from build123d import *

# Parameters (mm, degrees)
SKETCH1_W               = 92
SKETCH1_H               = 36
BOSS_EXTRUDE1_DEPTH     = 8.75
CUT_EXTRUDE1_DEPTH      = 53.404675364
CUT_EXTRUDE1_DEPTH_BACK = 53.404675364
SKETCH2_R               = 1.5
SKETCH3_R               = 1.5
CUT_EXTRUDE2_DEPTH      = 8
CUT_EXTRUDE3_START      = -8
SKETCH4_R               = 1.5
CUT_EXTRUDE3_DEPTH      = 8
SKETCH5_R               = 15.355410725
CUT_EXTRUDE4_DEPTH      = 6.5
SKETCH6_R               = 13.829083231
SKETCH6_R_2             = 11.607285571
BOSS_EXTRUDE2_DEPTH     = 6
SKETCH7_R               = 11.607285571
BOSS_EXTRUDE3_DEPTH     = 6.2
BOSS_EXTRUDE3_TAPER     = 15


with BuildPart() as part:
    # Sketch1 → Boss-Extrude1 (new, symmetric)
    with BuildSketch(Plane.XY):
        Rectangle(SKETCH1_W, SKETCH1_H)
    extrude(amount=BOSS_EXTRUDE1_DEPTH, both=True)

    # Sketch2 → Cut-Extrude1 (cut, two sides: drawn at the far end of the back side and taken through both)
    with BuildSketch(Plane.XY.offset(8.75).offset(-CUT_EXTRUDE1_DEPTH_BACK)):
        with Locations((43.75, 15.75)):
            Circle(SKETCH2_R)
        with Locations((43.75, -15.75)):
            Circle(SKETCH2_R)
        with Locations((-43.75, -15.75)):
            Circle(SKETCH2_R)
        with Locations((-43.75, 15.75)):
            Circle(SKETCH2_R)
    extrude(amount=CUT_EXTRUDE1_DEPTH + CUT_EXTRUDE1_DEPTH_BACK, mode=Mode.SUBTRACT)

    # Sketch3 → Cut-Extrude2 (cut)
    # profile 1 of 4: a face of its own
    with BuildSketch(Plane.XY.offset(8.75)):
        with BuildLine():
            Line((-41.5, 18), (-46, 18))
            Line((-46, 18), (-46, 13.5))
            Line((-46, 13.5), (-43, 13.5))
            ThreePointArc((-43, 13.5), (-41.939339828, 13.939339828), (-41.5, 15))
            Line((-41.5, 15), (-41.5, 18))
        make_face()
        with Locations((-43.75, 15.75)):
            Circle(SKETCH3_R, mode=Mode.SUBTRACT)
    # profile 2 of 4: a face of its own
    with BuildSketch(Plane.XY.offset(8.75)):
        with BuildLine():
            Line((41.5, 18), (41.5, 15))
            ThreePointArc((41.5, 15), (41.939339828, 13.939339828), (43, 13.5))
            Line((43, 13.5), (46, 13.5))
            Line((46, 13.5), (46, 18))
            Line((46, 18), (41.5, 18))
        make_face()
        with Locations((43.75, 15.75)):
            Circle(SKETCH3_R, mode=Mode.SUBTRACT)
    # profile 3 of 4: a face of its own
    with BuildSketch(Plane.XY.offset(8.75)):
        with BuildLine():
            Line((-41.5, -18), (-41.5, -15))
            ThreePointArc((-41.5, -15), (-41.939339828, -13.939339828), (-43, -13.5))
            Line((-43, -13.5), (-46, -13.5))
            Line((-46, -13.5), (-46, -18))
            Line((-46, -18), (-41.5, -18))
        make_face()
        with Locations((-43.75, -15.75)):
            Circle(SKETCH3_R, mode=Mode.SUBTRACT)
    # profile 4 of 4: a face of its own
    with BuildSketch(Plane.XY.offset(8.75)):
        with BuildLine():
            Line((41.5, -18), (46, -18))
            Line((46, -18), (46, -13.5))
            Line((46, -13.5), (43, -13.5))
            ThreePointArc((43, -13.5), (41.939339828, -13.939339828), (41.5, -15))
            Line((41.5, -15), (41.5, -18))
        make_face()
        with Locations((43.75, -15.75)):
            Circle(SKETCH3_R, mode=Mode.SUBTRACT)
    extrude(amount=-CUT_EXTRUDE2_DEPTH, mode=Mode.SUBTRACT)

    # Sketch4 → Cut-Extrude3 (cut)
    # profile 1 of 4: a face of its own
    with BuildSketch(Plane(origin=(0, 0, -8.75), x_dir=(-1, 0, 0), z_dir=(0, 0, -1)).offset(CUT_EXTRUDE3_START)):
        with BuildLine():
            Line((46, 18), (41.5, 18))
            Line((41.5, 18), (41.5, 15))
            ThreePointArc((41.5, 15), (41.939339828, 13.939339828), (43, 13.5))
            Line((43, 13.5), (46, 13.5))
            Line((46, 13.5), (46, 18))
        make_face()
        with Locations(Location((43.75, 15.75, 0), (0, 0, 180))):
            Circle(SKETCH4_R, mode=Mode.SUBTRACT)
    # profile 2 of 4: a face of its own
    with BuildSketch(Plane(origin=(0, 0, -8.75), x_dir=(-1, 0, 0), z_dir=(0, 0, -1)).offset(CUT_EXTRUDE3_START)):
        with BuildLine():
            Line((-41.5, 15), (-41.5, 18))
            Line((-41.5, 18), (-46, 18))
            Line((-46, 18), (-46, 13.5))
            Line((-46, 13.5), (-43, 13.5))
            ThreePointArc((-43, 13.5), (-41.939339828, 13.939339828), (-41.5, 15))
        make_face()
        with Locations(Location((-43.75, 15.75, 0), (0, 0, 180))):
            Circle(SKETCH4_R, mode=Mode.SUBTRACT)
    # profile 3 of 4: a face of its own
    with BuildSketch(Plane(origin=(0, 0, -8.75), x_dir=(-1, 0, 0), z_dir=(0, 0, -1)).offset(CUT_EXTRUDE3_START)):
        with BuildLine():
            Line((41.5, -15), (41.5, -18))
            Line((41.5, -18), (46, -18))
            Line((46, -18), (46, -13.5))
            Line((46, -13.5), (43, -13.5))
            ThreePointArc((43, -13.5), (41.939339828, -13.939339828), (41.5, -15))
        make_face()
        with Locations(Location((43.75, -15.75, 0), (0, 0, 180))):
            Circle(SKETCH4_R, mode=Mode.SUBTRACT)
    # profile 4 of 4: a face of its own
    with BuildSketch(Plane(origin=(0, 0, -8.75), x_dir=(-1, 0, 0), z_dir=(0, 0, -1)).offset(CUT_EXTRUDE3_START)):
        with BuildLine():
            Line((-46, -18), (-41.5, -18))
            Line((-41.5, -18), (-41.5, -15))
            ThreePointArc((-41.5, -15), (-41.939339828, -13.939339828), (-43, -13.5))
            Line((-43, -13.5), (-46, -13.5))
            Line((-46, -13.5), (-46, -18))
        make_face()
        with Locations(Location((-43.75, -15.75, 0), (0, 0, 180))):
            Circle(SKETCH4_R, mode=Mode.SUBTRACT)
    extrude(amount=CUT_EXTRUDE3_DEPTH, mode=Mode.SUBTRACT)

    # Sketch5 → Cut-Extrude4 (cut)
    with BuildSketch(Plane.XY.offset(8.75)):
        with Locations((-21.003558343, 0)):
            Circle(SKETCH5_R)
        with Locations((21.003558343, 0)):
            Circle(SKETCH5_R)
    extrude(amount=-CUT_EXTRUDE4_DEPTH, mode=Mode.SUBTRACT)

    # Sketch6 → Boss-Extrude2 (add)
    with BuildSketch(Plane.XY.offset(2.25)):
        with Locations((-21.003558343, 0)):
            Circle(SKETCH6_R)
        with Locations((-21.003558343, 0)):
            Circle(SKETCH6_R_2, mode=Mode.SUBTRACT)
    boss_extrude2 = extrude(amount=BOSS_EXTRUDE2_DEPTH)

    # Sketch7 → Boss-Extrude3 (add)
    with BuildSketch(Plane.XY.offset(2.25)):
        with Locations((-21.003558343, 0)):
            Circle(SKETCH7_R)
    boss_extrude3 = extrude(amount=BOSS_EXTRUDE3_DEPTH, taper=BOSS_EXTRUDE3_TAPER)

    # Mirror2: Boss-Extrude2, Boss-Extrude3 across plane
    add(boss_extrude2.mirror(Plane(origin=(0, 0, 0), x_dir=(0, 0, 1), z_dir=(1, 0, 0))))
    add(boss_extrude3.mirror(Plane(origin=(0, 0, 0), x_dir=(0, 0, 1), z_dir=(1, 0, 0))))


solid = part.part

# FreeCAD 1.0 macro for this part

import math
import FreeCAD as App
import Part
import Sketcher

V = App.Vector
Q = App.Units.Quantity

doc = App.newDocument("Part")
body = doc.addObject("PartDesign::Body", "Body")

# Sketch on XY plane
sketch1 = body.newObject("Sketcher::SketchObject", "Sketch")
sketch1.AttachmentSupport = (doc.getObject("XY_Plane"), [""])
sketch1.MapMode = "FlatFace"
sketch1.addGeometry([
    Part.LineSegment(V(-46, 18, 0), V(-46, -18, 0)),
    Part.LineSegment(V(-46, -18, 0), V(46, -18, 0)),
    Part.LineSegment(V(46, -18, 0), V(46, 18, 0)),
    Part.LineSegment(V(46, 18, 0), V(-46, 18, 0)),
], False)
sketch1.addConstraint([
    Sketcher.Constraint("Coincident", 0, 2, 1, 1),
    Sketcher.Constraint("Coincident", 1, 2, 2, 1),
    Sketcher.Constraint("Coincident", 2, 2, 3, 1),
    Sketcher.Constraint("Coincident", 3, 2, 0, 1),
    Sketcher.Constraint("Vertical", 0),
    Sketcher.Constraint("Horizontal", 1),
    Sketcher.Constraint("Vertical", 2),
    Sketcher.Constraint("Horizontal", 3),
    Sketcher.Constraint("Symmetric", 0, 2, 2, 2, -1, 1),
    Sketcher.Constraint("DistanceX", 1, 1, 1, 2, Q("92 mm")),
    Sketcher.Constraint("DistanceY", 0, 2, 0, 1, Q("36 mm")),
])
pad1 = body.newObject("PartDesign::Pad", "Pad")
pad1.Profile = sketch1
pad1.Length = 17.5
pad1.Midplane = True

# Sketch on XY plane
sketch2 = body.newObject("Sketcher::SketchObject", "Sketch001")
sketch2.AttachmentSupport = (doc.getObject("XY_Plane"), [""])
sketch2.MapMode = "FlatFace"
sketch2.AttachmentOffset = App.Placement(V(0, 0, 8.75), App.Rotation())
sketch2.addGeometry([
    Part.Circle(V(43.8, 15.8, 0), V(0, 0, 1), 1.5),
    Part.Circle(V(43.8, -15.8, 0), V(0, 0, 1), 1.5),
    Part.Circle(V(-43.8, -15.8, 0), V(0, 0, 1), 1.5),
    Part.Circle(V(-43.8, 15.8, 0), V(0, 0, 1), 1.5),
], False)
sketch2.addConstraint([
    Sketcher.Constraint("Equal", 0, 1),
    Sketcher.Constraint("Equal", 1, 2),
    Sketcher.Constraint("Equal", 2, 3),
    Sketcher.Constraint("Symmetric", 0, 3, 2, 3, -1, 1),
    Sketcher.Constraint("Symmetric", 1, 3, 3, 3, -1, 1),
    Sketcher.Constraint("Symmetric", 1, 3, 2, 3, -2),
    Sketcher.Constraint("Diameter", 0, Q("3 mm")),
    Sketcher.Constraint("DistanceY", 1, 3, 0, 3, Q("31.5 mm")),
    Sketcher.Constraint("DistanceX", 2, 3, 1, 3, Q("87.5 mm")),
])
pocket1 = body.newObject("PartDesign::Pocket", "Pocket")
pocket1.Profile = sketch2
pocket1.Type = "ThroughAll"
pocket1.Midplane = True

# Sketch on XY plane
sketch3 = body.newObject("Sketcher::SketchObject", "Sketch002")
sketch3.AttachmentSupport = (doc.getObject("XY_Plane"), [""])
sketch3.MapMode = "FlatFace"
sketch3.AttachmentOffset = App.Placement(V(0, 0, 8.75), App.Rotation())
sketch3.addGeometry([
    Part.LineSegment(V(-41.5, 18, 0), V(-46, 18, 0)),  # 0
    Part.LineSegment(V(-46, 18, 0), V(-46, 13.5, 0)),  # 1
    Part.LineSegment(V(-46, 13.5, 0), V(-43, 13.5, 0)),  # 2
    Part.ArcOfCircle(Part.Circle(V(-43, 15, 0), V(0, 0, 1), 1.5), math.radians(-90), math.radians(0)),  # 3
    Part.LineSegment(V(-41.5, 15, 0), V(-41.5, 18, 0)),  # 4
    Part.Circle(V(-43.8, 15.8, 0), V(0, 0, 1), 1.5),  # 5
    Part.LineSegment(V(41.5, 18, 0), V(41.5, 15, 0)),  # 6
    Part.ArcOfCircle(Part.Circle(V(43, 15, 0), V(0, 0, 1), 1.5), math.radians(180), math.radians(270)),  # 7
    Part.LineSegment(V(43, 13.5, 0), V(46, 13.5, 0)),  # 8
    Part.LineSegment(V(46, 13.5, 0), V(46, 18, 0)),  # 9
    Part.LineSegment(V(46, 18, 0), V(41.5, 18, 0)),  # 10
    Part.Circle(V(43.8, 15.8, 0), V(0, 0, 1), 1.5),  # 11
    Part.LineSegment(V(-41.5, -18, 0), V(-41.5, -15, 0)),  # 12
    Part.ArcOfCircle(Part.Circle(V(-43, -15, 0), V(0, 0, 1), 1.5), math.radians(0), math.radians(90)),  # 13
    Part.LineSegment(V(-43, -13.5, 0), V(-46, -13.5, 0)),  # 14
    Part.LineSegment(V(-46, -13.5, 0), V(-46, -18, 0)),  # 15
    Part.LineSegment(V(-46, -18, 0), V(-41.5, -18, 0)),  # 16
    Part.Circle(V(-43.8, -15.8, 0), V(0, 0, 1), 1.5),  # 17
    Part.LineSegment(V(41.5, -18, 0), V(46, -18, 0)),  # 18
    Part.LineSegment(V(46, -18, 0), V(46, -13.5, 0)),  # 19
    Part.LineSegment(V(46, -13.5, 0), V(43, -13.5, 0)),  # 20
    Part.ArcOfCircle(Part.Circle(V(43, -15, 0), V(0, 0, 1), 1.5), math.radians(90), math.radians(180)),  # 21
    Part.LineSegment(V(41.5, -15, 0), V(41.5, -18, 0)),  # 22
    Part.Circle(V(43.8, -15.8, 0), V(0, 0, 1), 1.5),  # 23
], False)
sketch3.addConstraint([
    Sketcher.Constraint("Coincident", 0, 2, 1, 1),
    Sketcher.Constraint("Coincident", 1, 2, 2, 1),
    Sketcher.Constraint("Tangent", 2, 2, 3, 1),
    Sketcher.Constraint("Tangent", 3, 2, 4, 1),
    Sketcher.Constraint("Coincident", 4, 2, 0, 1),
    Sketcher.Constraint("Tangent", 6, 2, 7, 1),
    Sketcher.Constraint("Tangent", 7, 2, 8, 1),
    Sketcher.Constraint("Coincident", 8, 2, 9, 1),
    Sketcher.Constraint("Coincident", 9, 2, 10, 1),
    Sketcher.Constraint("Coincident", 10, 2, 6, 1),
    Sketcher.Constraint("Tangent", 12, 2, 13, 1),
    Sketcher.Constraint("Tangent", 13, 2, 14, 1),
    Sketcher.Constraint("Coincident", 14, 2, 15, 1),
    Sketcher.Constraint("Coincident", 15, 2, 16, 1),
    Sketcher.Constraint("Coincident", 16, 2, 12, 1),
    Sketcher.Constraint("Coincident", 18, 2, 19, 1),
    Sketcher.Constraint("Coincident", 19, 2, 20, 1),
    Sketcher.Constraint("Tangent", 20, 2, 21, 1),
    Sketcher.Constraint("Tangent", 21, 2, 22, 1),
    Sketcher.Constraint("Coincident", 22, 2, 18, 1),
    Sketcher.Constraint("Horizontal", 0),
    Sketcher.Constraint("Vertical", 1),
    Sketcher.Constraint("Horizontal", 2),
    Sketcher.Constraint("Vertical", 4),
    Sketcher.Constraint("Vertical", 6),
    Sketcher.Constraint("Horizontal", 8),
    Sketcher.Constraint("Vertical", 9),
    Sketcher.Constraint("Horizontal", 10),
    Sketcher.Constraint("Vertical", 12),
    Sketcher.Constraint("Horizontal", 14),
    Sketcher.Constraint("Vertical", 15),
    Sketcher.Constraint("Horizontal", 16),
    Sketcher.Constraint("Horizontal", 18),
    Sketcher.Constraint("Vertical", 19),
    Sketcher.Constraint("Horizontal", 20),
    Sketcher.Constraint("Vertical", 22),
    Sketcher.Constraint("Equal", 3, 5),
    Sketcher.Constraint("Equal", 5, 7),
    Sketcher.Constraint("Equal", 7, 11),
    Sketcher.Constraint("Equal", 11, 13),
    Sketcher.Constraint("Equal", 13, 17),
    Sketcher.Constraint("Equal", 17, 21),
    Sketcher.Constraint("Equal", 21, 23),
    Sketcher.Constraint("Symmetric", 7, 3, 13, 3, -1, 1),
    Sketcher.Constraint("Symmetric", 11, 3, 17, 3, -1, 1),
    Sketcher.Constraint("Symmetric", 3, 3, 21, 3, -1, 1),
    Sketcher.Constraint("Symmetric", 5, 3, 23, 3, -1, 1),
    Sketcher.Constraint("Symmetric", 9, 2, 15, 2, -1, 1),
    Sketcher.Constraint("Symmetric", 0, 2, 18, 2, -1, 1),
    Sketcher.Constraint("Symmetric", 3, 3, 7, 3, -2),
    Sketcher.Constraint("Symmetric", 5, 3, 11, 3, -2),
    Sketcher.Constraint("Symmetric", 0, 2, 9, 2, -2),
    Sketcher.Constraint("Equal", 18, 1),
    Sketcher.Constraint("Diameter", 5, Q("3 mm")),
    Sketcher.Constraint("DistanceX", 2, 1, 2, 2, Q("3 mm")),
    Sketcher.Constraint("DistanceX", 3, 3, -1, 1, Q("43 mm")),
    Sketcher.Constraint("DistanceY", -1, 1, 3, 3, Q("15 mm")),
    Sketcher.Constraint("DistanceX", 5, 3, 11, 3, Q("87.5 mm")),
    Sketcher.Constraint("DistanceY", 17, 3, 5, 3, Q("31.5 mm")),
])
pocket2 = body.newObject("PartDesign::Pocket", "Pocket001")
pocket2.Profile = sketch3
pocket2.Length = 8

# Sketch on XY plane
sketch4 = body.newObject("Sketcher::SketchObject", "Sketch003")
sketch4.AttachmentSupport = (doc.getObject("XY_Plane"), [""])
sketch4.MapMode = "FlatFace"
sketch4.AttachmentOffset = App.Placement(V(0, 0, -0.75), App.Rotation())
sketch4.addGeometry([
    Part.LineSegment(V(-46, 18, 0), V(-41.5, 18, 0)),  # 0
    Part.LineSegment(V(-41.5, 18, 0), V(-41.5, 15, 0)),  # 1
    Part.ArcOfCircle(Part.Circle(V(-43, 15, 0), V(0, 0, 1), 1.5), math.radians(-90), math.radians(0)),  # 2
    Part.LineSegment(V(-43, 13.5, 0), V(-46, 13.5, 0)),  # 3
    Part.LineSegment(V(-46, 13.5, 0), V(-46, 18, 0)),  # 4
    Part.Circle(V(-43.8, 15.8, 0), V(0, 0, 1), 1.5),  # 5
    Part.LineSegment(V(41.5, 15, 0), V(41.5, 18, 0)),  # 6
    Part.LineSegment(V(41.5, 18, 0), V(46, 18, 0)),  # 7
    Part.LineSegment(V(46, 18, 0), V(46, 13.5, 0)),  # 8
    Part.LineSegment(V(46, 13.5, 0), V(43, 13.5, 0)),  # 9
    Part.ArcOfCircle(Part.Circle(V(43, 15, 0), V(0, 0, 1), 1.5), math.radians(180), math.radians(270)),  # 10
    Part.Circle(V(43.8, 15.8, 0), V(0, 0, 1), 1.5),  # 11
    Part.LineSegment(V(-41.5, -15, 0), V(-41.5, -18, 0)),  # 12
    Part.LineSegment(V(-41.5, -18, 0), V(-46, -18, 0)),  # 13
    Part.LineSegment(V(-46, -18, 0), V(-46, -13.5, 0)),  # 14
    Part.LineSegment(V(-46, -13.5, 0), V(-43, -13.5, 0)),  # 15
    Part.ArcOfCircle(Part.Circle(V(-43, -15, 0), V(0, 0, 1), 1.5), math.radians(0), math.radians(90)),  # 16
    Part.Circle(V(-43.8, -15.8, 0), V(0, 0, 1), 1.5),  # 17
    Part.LineSegment(V(46, -18, 0), V(41.5, -18, 0)),  # 18
    Part.LineSegment(V(41.5, -18, 0), V(41.5, -15, 0)),  # 19
    Part.ArcOfCircle(Part.Circle(V(43, -15, 0), V(0, 0, 1), 1.5), math.radians(90), math.radians(180)),  # 20
    Part.LineSegment(V(43, -13.5, 0), V(46, -13.5, 0)),  # 21
    Part.LineSegment(V(46, -13.5, 0), V(46, -18, 0)),  # 22
    Part.Circle(V(43.8, -15.8, 0), V(0, 0, 1), 1.5),  # 23
], False)
sketch4.addConstraint([
    Sketcher.Constraint("Coincident", 0, 2, 1, 1),
    Sketcher.Constraint("Tangent", 1, 2, 2, 2),
    Sketcher.Constraint("Tangent", 2, 1, 3, 1),
    Sketcher.Constraint("Coincident", 3, 2, 4, 1),
    Sketcher.Constraint("Coincident", 4, 2, 0, 1),
    Sketcher.Constraint("Coincident", 6, 2, 7, 1),
    Sketcher.Constraint("Coincident", 7, 2, 8, 1),
    Sketcher.Constraint("Coincident", 8, 2, 9, 1),
    Sketcher.Constraint("Tangent", 9, 2, 10, 2),
    Sketcher.Constraint("Tangent", 10, 1, 6, 1),
    Sketcher.Constraint("Coincident", 12, 2, 13, 1),
    Sketcher.Constraint("Coincident", 13, 2, 14, 1),
    Sketcher.Constraint("Coincident", 14, 2, 15, 1),
    Sketcher.Constraint("Tangent", 15, 2, 16, 2),
    Sketcher.Constraint("Tangent", 16, 1, 12, 1),
    Sketcher.Constraint("Coincident", 18, 2, 19, 1),
    Sketcher.Constraint("Tangent", 19, 2, 20, 2),
    Sketcher.Constraint("Tangent", 20, 1, 21, 1),
    Sketcher.Constraint("Coincident", 21, 2, 22, 1),
    Sketcher.Constraint("Coincident", 22, 2, 18, 1),
    Sketcher.Constraint("Horizontal", 0),
    Sketcher.Constraint("Vertical", 1),
    Sketcher.Constraint("Horizontal", 3),
    Sketcher.Constraint("Vertical", 4),
    Sketcher.Constraint("Vertical", 6),
    Sketcher.Constraint("Horizontal", 7),
    Sketcher.Constraint("Vertical", 8),
    Sketcher.Constraint("Horizontal", 9),
    Sketcher.Constraint("Vertical", 12),
    Sketcher.Constraint("Horizontal", 13),
    Sketcher.Constraint("Vertical", 14),
    Sketcher.Constraint("Horizontal", 15),
    Sketcher.Constraint("Horizontal", 18),
    Sketcher.Constraint("Vertical", 19),
    Sketcher.Constraint("Horizontal", 21),
    Sketcher.Constraint("Vertical", 22),
    Sketcher.Constraint("Equal", 2, 5),
    Sketcher.Constraint("Equal", 5, 10),
    Sketcher.Constraint("Equal", 10, 11),
    Sketcher.Constraint("Equal", 11, 16),
    Sketcher.Constraint("Equal", 16, 17),
    Sketcher.Constraint("Equal", 17, 20),
    Sketcher.Constraint("Equal", 20, 23),
    Sketcher.Constraint("Symmetric", 10, 3, 16, 3, -1, 1),
    Sketcher.Constraint("Symmetric", 11, 3, 17, 3, -1, 1),
    Sketcher.Constraint("Symmetric", 2, 3, 20, 3, -1, 1),
    Sketcher.Constraint("Symmetric", 5, 3, 23, 3, -1, 1),
    Sketcher.Constraint("Symmetric", 7, 2, 13, 2, -1, 1),
    Sketcher.Constraint("Symmetric", 4, 2, 22, 2, -1, 1),
    Sketcher.Constraint("Symmetric", 2, 3, 10, 3, -2),
    Sketcher.Constraint("Symmetric", 5, 3, 11, 3, -2),
    Sketcher.Constraint("Symmetric", 4, 2, 7, 2, -2),
    Sketcher.Constraint("Equal", 21, 1),
    Sketcher.Constraint("Diameter", 5, Q("3 mm")),
    Sketcher.Constraint("DistanceX", 3, 2, 3, 1, Q("3 mm")),
    Sketcher.Constraint("DistanceX", 2, 3, -1, 1, Q("43 mm")),
    Sketcher.Constraint("DistanceY", -1, 1, 2, 3, Q("15 mm")),
    Sketcher.Constraint("DistanceX", 5, 3, 11, 3, Q("87.5 mm")),
    Sketcher.Constraint("DistanceY", 17, 3, 5, 3, Q("31.5 mm")),
])
pocket3 = body.newObject("PartDesign::Pocket", "Pocket002")
pocket3.Profile = sketch4
pocket3.Length = 8

# Sketch on XY plane
sketch5 = body.newObject("Sketcher::SketchObject", "Sketch004")
sketch5.AttachmentSupport = (doc.getObject("XY_Plane"), [""])
sketch5.MapMode = "FlatFace"
sketch5.AttachmentOffset = App.Placement(V(0, 0, 8.75), App.Rotation())
sketch5.addGeometry([
    Part.Circle(V(-21, 0, 0), V(0, 0, 1), 15),
    Part.Circle(V(21, 0, 0), V(0, 0, 1), 15),
], False)
sketch5.addConstraint([
    Sketcher.Constraint("Equal", 0, 1),
    Sketcher.Constraint("Symmetric", 0, 3, 1, 3, -1, 1),
    Sketcher.Constraint("PointOnObject", 0, 3, -1),
    Sketcher.Constraint("Diameter", 0, Q("30.710821 mm")),
    Sketcher.Constraint("DistanceX", 0, 3, -1, 1, Q("21.003558 mm")),
])
pocket4 = body.newObject("PartDesign::Pocket", "Pocket003")
pocket4.Profile = sketch5
pocket4.Length = 6.5

# Sketch on XY plane
sketch6 = body.newObject("Sketcher::SketchObject", "Sketch005")
sketch6.AttachmentSupport = (doc.getObject("XY_Plane"), [""])
sketch6.MapMode = "FlatFace"
sketch6.AttachmentOffset = App.Placement(V(0, 0, 2.25), App.Rotation())
sketch6.addGeometry([
    Part.Circle(V(-21, 0, 0), V(0, 0, 1), 14),
    Part.Circle(V(-21, 0, 0), V(0, 0, 1), 12),
], False)
sketch6.addConstraint([
    Sketcher.Constraint("Coincident", 1, 3, 0, 3),
    Sketcher.Constraint("PointOnObject", 0, 3, -1),
    Sketcher.Constraint("Diameter", 1, Q("23.214571 mm")),
    Sketcher.Constraint("Diameter", 0, Q("27.658166 mm")),
    Sketcher.Constraint("DistanceX", 0, 3, -1, 1, Q("21.003558 mm")),
])
pad2 = body.newObject("PartDesign::Pad", "Pad001")
pad2.Profile = sketch6
pad2.Length = 6

# Sketch on XY plane
sketch7 = body.newObject("Sketcher::SketchObject", "Sketch006")
sketch7.AttachmentSupport = (doc.getObject("XY_Plane"), [""])
sketch7.MapMode = "FlatFace"
sketch7.AttachmentOffset = App.Placement(V(0, 0, 2.25), App.Rotation())
sketch7.addGeometry(Part.Circle(V(-21, 0, 0), V(0, 0, 1), 12), False)
sketch7.addConstraint([
    Sketcher.Constraint("PointOnObject", 0, 3, -1),
    Sketcher.Constraint("Diameter", 0, Q("23.214571 mm")),
    Sketcher.Constraint("DistanceX", 0, 3, -1, 1, Q("21.003558 mm")),
])
pad3 = body.newObject("PartDesign::Pad", "Pad002")
pad3.Profile = sketch7
pad3.Length = 6.2
pad3.TaperAngle = -15
doc.recompute()

mirrored = body.newObject("PartDesign::Mirrored", "Mirrored")
mirrored.Originals = [pad2, pad3]
mirrored.MirrorPlane = (doc.getObject("YZ_Plane"), [""])
body.Tip = mirrored

doc.recompute()
